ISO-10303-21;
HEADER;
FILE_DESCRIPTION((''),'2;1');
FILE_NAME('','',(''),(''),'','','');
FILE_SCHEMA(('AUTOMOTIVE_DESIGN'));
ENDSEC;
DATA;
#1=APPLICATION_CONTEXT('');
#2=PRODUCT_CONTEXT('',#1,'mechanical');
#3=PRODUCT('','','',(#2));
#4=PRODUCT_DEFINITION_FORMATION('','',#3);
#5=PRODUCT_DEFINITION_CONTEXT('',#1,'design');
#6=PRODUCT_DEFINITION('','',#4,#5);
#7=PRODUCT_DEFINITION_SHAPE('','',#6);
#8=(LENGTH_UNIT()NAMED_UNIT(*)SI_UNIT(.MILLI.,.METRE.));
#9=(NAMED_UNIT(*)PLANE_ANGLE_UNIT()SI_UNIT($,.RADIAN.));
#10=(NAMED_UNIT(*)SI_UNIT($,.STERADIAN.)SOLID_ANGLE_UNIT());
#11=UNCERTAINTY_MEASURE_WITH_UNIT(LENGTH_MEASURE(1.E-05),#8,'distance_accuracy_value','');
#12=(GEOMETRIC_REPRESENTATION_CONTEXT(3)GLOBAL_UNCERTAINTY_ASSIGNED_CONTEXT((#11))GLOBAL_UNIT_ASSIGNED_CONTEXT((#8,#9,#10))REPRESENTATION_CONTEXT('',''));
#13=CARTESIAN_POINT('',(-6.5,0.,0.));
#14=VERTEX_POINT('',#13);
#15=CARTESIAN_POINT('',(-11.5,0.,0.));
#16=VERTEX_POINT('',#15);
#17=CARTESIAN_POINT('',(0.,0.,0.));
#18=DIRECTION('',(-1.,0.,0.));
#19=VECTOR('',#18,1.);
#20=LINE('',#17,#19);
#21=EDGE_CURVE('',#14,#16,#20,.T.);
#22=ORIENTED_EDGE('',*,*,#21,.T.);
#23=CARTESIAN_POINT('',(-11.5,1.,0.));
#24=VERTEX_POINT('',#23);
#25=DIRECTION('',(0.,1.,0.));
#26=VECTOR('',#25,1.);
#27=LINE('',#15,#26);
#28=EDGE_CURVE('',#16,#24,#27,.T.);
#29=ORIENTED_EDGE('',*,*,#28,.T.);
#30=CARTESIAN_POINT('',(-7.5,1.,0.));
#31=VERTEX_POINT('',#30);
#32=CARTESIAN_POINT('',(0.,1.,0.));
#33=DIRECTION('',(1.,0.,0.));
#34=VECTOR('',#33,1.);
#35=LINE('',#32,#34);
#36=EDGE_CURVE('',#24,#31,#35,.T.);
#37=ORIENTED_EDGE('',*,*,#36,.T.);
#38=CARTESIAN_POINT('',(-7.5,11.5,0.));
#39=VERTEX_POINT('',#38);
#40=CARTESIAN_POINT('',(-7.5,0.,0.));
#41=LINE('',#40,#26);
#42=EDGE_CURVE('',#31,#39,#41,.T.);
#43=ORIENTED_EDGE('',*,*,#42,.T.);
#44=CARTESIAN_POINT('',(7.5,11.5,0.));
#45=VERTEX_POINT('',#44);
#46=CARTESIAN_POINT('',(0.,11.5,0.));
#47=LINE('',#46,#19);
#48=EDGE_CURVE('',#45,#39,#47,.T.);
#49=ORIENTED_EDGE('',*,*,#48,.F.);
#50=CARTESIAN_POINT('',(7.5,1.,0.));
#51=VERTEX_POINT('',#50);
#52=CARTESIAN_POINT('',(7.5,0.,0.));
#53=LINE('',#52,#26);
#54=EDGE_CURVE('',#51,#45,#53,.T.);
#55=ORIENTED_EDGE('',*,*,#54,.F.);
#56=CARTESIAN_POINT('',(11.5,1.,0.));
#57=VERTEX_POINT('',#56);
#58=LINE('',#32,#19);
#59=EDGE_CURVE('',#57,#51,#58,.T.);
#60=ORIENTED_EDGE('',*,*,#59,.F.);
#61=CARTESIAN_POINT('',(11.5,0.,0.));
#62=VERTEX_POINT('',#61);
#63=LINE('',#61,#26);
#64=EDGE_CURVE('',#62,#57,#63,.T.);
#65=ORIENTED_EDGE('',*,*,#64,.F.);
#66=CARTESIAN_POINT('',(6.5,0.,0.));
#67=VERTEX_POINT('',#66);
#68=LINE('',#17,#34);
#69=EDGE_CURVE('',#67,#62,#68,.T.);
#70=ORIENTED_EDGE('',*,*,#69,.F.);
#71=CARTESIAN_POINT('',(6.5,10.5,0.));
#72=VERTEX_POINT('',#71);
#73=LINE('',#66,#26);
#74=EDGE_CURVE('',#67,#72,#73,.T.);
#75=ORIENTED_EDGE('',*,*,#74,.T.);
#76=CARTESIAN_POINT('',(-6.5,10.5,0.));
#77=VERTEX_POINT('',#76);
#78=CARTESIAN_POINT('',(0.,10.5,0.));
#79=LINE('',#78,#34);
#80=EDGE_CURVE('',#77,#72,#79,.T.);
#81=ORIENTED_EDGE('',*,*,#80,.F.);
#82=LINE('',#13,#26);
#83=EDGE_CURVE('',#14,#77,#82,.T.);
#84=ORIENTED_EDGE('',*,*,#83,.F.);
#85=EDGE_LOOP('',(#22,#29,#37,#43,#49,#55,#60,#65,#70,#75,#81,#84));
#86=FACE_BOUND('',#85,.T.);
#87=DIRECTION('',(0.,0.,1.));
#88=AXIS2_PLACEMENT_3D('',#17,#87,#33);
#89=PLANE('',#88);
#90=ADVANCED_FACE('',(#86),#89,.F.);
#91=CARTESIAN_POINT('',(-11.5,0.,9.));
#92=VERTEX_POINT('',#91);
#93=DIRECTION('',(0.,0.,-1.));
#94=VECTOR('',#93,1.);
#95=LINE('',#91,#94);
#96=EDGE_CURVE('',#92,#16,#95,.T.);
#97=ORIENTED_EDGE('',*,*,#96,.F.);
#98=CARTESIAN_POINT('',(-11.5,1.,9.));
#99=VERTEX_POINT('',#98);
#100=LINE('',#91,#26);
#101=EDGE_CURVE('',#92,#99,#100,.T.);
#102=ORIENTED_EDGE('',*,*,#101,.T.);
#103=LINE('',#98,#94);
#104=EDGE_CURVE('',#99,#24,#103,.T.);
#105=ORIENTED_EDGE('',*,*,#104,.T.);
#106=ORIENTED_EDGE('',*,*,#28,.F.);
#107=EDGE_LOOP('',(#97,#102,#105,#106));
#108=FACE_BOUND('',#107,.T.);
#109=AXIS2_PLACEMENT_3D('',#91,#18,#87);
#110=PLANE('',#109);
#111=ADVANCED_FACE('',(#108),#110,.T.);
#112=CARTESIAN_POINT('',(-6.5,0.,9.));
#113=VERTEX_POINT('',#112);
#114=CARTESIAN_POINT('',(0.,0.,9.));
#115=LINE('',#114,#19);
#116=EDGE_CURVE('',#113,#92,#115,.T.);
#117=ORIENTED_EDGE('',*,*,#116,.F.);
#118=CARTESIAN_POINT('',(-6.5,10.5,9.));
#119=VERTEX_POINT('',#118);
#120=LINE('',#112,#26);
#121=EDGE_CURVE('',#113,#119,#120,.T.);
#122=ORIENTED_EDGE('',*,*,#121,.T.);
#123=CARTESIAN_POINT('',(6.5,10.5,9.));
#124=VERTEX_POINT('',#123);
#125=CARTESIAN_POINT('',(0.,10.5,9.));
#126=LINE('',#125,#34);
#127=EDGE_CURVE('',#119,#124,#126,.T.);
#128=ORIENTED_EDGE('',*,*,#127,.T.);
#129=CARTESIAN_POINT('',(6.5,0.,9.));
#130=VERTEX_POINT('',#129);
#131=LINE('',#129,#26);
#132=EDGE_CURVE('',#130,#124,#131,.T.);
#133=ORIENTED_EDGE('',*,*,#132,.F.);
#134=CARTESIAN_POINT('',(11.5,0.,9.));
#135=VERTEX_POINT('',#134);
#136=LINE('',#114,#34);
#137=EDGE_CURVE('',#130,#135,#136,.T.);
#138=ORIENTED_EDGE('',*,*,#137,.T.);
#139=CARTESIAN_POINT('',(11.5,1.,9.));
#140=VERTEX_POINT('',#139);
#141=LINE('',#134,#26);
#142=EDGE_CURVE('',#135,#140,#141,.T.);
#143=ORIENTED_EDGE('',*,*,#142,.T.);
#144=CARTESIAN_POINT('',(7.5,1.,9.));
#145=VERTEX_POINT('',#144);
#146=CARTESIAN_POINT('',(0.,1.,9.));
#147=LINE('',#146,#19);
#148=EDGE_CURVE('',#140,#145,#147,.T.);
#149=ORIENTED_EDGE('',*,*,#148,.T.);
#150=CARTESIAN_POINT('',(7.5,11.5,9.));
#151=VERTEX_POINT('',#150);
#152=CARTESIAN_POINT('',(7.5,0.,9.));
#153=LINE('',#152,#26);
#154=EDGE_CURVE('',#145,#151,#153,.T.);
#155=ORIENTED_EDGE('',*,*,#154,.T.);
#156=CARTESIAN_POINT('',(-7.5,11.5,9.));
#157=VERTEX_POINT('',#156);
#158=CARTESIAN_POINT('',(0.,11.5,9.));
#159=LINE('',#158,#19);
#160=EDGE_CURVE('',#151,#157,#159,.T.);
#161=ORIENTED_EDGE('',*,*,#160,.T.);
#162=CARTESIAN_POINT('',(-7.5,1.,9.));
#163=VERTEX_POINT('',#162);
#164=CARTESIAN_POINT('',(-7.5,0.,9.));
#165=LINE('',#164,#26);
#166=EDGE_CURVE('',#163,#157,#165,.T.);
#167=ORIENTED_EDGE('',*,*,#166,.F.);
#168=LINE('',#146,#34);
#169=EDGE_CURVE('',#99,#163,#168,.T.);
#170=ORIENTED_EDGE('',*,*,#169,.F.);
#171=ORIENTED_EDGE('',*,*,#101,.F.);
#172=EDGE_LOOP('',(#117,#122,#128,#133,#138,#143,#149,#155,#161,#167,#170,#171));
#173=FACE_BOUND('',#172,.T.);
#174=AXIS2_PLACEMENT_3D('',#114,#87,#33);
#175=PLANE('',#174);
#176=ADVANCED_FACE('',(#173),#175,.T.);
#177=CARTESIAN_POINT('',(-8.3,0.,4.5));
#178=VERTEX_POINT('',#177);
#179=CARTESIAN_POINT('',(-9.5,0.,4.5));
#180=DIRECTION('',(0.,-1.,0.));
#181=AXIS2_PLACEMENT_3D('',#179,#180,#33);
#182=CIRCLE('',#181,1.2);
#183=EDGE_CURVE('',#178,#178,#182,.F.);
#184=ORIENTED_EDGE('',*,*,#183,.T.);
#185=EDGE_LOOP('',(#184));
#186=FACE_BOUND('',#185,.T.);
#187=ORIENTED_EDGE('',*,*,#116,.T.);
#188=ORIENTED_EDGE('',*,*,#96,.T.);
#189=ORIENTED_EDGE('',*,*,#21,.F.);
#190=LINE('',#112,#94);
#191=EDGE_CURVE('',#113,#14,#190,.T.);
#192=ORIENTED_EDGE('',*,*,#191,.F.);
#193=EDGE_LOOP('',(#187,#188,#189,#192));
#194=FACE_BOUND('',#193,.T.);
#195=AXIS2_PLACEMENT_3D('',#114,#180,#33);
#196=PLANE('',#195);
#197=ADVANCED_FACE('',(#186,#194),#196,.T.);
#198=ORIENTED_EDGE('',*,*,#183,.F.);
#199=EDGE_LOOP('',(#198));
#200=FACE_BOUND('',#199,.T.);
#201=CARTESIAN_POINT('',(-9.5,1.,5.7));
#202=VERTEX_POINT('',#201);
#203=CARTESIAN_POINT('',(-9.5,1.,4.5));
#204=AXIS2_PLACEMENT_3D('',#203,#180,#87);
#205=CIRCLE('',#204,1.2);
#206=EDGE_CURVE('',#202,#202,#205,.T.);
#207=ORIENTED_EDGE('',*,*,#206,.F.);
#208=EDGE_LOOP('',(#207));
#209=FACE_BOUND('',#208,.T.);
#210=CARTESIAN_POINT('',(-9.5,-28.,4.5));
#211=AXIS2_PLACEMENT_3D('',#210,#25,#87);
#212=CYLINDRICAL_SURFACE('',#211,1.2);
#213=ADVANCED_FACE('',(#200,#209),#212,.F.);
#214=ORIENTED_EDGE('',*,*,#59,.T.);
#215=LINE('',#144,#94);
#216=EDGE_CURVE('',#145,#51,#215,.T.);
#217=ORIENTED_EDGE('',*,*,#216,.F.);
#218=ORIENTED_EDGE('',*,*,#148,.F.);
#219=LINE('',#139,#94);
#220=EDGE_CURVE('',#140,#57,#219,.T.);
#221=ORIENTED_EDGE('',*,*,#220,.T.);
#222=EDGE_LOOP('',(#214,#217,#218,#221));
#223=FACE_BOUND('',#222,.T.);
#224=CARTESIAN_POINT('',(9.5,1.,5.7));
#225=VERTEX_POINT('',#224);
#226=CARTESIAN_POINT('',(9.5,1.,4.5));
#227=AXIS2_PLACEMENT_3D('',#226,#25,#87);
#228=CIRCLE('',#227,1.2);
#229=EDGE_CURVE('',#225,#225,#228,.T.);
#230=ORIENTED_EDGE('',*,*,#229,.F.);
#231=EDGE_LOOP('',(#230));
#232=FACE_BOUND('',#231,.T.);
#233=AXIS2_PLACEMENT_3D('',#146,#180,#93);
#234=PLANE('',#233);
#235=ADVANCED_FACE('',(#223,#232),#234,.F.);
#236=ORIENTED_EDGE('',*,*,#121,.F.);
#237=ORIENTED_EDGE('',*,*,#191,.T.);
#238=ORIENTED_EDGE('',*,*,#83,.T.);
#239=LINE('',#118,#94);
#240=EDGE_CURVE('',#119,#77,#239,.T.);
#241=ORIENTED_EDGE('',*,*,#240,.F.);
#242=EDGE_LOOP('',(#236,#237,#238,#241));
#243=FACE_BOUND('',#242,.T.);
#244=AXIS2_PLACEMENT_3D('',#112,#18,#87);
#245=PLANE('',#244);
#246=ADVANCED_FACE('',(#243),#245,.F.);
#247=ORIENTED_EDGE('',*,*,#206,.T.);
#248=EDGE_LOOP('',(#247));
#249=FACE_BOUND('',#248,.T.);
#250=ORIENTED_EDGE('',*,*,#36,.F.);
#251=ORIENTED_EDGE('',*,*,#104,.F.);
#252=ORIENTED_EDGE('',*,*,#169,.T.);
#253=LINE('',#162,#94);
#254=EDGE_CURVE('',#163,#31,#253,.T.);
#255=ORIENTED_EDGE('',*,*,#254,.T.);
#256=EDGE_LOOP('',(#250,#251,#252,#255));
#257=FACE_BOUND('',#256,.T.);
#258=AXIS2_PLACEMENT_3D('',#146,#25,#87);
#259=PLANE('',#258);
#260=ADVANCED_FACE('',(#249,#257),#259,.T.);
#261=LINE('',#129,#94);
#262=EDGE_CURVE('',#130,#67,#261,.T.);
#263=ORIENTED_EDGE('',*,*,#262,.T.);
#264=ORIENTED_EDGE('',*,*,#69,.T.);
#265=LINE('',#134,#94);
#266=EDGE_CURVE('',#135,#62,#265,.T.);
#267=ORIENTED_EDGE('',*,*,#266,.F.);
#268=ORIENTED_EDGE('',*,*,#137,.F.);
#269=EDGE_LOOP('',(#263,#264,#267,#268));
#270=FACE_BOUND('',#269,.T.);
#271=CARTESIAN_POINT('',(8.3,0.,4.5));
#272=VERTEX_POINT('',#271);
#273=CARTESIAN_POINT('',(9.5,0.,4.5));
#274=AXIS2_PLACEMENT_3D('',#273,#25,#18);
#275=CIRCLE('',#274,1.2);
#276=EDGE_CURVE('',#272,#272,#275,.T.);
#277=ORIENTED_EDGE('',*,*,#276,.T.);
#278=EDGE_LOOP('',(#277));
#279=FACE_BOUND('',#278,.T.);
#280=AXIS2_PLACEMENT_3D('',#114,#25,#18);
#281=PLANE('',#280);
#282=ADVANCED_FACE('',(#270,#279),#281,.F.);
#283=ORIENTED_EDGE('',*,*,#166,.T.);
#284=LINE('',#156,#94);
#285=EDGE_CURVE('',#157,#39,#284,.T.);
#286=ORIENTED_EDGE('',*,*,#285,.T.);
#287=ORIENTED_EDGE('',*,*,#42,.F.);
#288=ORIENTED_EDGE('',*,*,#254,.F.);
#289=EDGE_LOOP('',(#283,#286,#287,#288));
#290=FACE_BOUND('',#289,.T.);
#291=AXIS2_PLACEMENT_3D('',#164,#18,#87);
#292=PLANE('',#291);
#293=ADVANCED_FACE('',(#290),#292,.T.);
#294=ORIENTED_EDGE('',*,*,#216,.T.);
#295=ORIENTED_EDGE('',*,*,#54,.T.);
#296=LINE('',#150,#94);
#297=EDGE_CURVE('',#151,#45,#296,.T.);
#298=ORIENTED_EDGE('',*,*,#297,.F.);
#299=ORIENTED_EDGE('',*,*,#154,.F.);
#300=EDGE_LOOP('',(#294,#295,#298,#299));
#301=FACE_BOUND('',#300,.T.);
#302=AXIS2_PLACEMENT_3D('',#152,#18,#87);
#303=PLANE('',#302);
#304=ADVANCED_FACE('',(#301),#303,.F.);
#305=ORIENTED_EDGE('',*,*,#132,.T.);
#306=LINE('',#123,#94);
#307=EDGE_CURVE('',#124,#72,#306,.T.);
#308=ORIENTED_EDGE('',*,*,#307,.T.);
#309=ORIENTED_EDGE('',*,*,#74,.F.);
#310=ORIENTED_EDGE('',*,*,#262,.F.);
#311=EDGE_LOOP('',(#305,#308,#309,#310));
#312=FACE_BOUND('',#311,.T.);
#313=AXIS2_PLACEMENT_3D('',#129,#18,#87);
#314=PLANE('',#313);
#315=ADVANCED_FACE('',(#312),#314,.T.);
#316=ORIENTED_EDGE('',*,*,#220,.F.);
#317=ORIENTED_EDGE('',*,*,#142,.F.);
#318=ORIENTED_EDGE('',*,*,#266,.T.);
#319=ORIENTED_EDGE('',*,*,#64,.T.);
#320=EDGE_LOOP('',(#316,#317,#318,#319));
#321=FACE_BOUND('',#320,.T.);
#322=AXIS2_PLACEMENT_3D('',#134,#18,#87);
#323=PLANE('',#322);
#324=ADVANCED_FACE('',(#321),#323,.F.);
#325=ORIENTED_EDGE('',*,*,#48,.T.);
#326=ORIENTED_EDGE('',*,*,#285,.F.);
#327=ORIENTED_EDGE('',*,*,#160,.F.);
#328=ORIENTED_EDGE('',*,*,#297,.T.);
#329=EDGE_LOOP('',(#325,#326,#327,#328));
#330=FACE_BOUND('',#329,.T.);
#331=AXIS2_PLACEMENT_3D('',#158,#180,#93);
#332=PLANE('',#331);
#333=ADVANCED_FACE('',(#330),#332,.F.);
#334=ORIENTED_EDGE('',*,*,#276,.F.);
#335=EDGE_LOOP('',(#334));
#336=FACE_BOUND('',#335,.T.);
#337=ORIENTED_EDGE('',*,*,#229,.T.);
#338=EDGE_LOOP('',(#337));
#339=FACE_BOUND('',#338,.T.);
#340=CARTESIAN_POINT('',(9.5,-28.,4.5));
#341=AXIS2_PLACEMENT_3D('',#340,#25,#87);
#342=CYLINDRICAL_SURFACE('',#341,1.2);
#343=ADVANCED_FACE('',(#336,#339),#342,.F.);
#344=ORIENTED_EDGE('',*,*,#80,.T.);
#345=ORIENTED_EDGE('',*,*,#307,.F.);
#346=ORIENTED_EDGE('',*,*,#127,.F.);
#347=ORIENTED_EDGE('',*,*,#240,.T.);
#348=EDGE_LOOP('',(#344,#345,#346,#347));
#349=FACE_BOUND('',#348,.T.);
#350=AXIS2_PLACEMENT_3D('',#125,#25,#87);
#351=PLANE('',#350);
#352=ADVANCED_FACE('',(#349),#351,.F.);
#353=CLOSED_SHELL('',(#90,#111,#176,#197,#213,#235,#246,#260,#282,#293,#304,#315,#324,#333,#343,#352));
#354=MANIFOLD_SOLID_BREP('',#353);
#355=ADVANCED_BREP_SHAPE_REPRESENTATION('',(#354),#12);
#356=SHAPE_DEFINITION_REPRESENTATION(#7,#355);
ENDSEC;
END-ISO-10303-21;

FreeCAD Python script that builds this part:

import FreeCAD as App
import Part
import Sketcher

V = App.Vector
Q = App.Units.Quantity


def add_polygon(sketch, points):
    """Adds a closed chain of lines whose ends are joined by coincident constraints."""
    first, n = sketch.GeometryCount, len(points)
    for a, b in zip(points, points[1:] + points[:1]):
        sketch.addGeometry(Part.LineSegment(App.Vector(*a, 0), App.Vector(*b, 0)), False)
    for i in range(n):
        sketch.addConstraint(Sketcher.Constraint("Coincident", first + i, 2, first + (i + 1) % n, 1))

doc = App.newDocument("Part")
body = doc.addObject("PartDesign::Body", "Body")

# Sketch on XY plane
sketch1 = body.newObject("Sketcher::SketchObject", "Sketch")
sketch1.AttachmentSupport = (doc.getObject("XY_Plane"), [""])
sketch1.MapMode = "FlatFace"
add_polygon(sketch1, [(7.5, 1), (7.5, 11.5), (-7.5, 11.5), (-7.5, 1), (-11.5, 1), (-11.5, 0), (-6.5, 0), (-6.5, 10.5), (6.5, 10.5), (6.5, 0), (11.5, 0), (11.5, 1)])  # lines 0-11
sketch1.addConstraint([
    Sketcher.Constraint("Vertical", 0),
    Sketcher.Constraint("Horizontal", 1),
    Sketcher.Constraint("Vertical", 2),
    Sketcher.Constraint("Horizontal", 3),
    Sketcher.Constraint("Vertical", 4),
    Sketcher.Constraint("Horizontal", 5),
    Sketcher.Constraint("Vertical", 6),
    Sketcher.Constraint("Horizontal", 7),
    Sketcher.Constraint("Vertical", 8),
    Sketcher.Constraint("Horizontal", 9),
    Sketcher.Constraint("Vertical", 10),
    Sketcher.Constraint("Horizontal", 11),
    Sketcher.Constraint("Symmetric", 5, 2, 8, 2, -1, 1),
    Sketcher.Constraint("Symmetric", 4, 2, 9, 2, -2),
    Sketcher.Constraint("Symmetric", 2, 2, 11, 2, -2),
    Sketcher.Constraint("Equal", 2, 6),
    Sketcher.Constraint("DistanceX", 1, 2, 1, 1, Q("15 mm")),
    Sketcher.Constraint("DistanceX", 3, 2, 3, 1, Q("4 mm")),
    Sketcher.Constraint("DistanceX", 5, 1, 5, 2, Q("5 mm")),
    Sketcher.Constraint("DistanceY", 4, 2, 4, 1, Q("1 mm")),
    Sketcher.Constraint("DistanceY", 0, 1, 0, 2, Q("10.5 mm")),
])
pad1 = body.newObject("PartDesign::Pad", "Pad")
pad1.Profile = sketch1
pad1.Length = 9

# Sketch on XZ plane
sketch2 = body.newObject("Sketcher::SketchObject", "Sketch001")
sketch2.AttachmentSupport = (doc.getObject("XZ_Plane"), [""])
sketch2.MapMode = "FlatFace"
sketch2.AttachmentOffset = App.Placement(V(0, 0, -1), App.Rotation())
sketch2.addGeometry(Part.Circle(V(9.5, 4.5, 0), V(0, 0, 1), 1.2), False)
sketch2.addConstraint([
    Sketcher.Constraint("Diameter", 0, Q("2.4 mm")),
    Sketcher.Constraint("DistanceX", -1, 1, 0, 3, Q("9.5 mm")),
    Sketcher.Constraint("DistanceY", -1, 1, 0, 3, Q("4.5 mm")),
])
pocket1 = body.newObject("PartDesign::Pocket", "Pocket")
pocket1.Profile = sketch2
pocket1.Length = 29
pocket1.Reversed = True
doc.recompute()

mirrored = body.newObject("PartDesign::Mirrored", "Mirrored")
mirrored.Originals = [pocket1]
mirrored.MirrorPlane = (doc.getObject("YZ_Plane"), [""])
body.Tip = mirrored

doc.recompute()
